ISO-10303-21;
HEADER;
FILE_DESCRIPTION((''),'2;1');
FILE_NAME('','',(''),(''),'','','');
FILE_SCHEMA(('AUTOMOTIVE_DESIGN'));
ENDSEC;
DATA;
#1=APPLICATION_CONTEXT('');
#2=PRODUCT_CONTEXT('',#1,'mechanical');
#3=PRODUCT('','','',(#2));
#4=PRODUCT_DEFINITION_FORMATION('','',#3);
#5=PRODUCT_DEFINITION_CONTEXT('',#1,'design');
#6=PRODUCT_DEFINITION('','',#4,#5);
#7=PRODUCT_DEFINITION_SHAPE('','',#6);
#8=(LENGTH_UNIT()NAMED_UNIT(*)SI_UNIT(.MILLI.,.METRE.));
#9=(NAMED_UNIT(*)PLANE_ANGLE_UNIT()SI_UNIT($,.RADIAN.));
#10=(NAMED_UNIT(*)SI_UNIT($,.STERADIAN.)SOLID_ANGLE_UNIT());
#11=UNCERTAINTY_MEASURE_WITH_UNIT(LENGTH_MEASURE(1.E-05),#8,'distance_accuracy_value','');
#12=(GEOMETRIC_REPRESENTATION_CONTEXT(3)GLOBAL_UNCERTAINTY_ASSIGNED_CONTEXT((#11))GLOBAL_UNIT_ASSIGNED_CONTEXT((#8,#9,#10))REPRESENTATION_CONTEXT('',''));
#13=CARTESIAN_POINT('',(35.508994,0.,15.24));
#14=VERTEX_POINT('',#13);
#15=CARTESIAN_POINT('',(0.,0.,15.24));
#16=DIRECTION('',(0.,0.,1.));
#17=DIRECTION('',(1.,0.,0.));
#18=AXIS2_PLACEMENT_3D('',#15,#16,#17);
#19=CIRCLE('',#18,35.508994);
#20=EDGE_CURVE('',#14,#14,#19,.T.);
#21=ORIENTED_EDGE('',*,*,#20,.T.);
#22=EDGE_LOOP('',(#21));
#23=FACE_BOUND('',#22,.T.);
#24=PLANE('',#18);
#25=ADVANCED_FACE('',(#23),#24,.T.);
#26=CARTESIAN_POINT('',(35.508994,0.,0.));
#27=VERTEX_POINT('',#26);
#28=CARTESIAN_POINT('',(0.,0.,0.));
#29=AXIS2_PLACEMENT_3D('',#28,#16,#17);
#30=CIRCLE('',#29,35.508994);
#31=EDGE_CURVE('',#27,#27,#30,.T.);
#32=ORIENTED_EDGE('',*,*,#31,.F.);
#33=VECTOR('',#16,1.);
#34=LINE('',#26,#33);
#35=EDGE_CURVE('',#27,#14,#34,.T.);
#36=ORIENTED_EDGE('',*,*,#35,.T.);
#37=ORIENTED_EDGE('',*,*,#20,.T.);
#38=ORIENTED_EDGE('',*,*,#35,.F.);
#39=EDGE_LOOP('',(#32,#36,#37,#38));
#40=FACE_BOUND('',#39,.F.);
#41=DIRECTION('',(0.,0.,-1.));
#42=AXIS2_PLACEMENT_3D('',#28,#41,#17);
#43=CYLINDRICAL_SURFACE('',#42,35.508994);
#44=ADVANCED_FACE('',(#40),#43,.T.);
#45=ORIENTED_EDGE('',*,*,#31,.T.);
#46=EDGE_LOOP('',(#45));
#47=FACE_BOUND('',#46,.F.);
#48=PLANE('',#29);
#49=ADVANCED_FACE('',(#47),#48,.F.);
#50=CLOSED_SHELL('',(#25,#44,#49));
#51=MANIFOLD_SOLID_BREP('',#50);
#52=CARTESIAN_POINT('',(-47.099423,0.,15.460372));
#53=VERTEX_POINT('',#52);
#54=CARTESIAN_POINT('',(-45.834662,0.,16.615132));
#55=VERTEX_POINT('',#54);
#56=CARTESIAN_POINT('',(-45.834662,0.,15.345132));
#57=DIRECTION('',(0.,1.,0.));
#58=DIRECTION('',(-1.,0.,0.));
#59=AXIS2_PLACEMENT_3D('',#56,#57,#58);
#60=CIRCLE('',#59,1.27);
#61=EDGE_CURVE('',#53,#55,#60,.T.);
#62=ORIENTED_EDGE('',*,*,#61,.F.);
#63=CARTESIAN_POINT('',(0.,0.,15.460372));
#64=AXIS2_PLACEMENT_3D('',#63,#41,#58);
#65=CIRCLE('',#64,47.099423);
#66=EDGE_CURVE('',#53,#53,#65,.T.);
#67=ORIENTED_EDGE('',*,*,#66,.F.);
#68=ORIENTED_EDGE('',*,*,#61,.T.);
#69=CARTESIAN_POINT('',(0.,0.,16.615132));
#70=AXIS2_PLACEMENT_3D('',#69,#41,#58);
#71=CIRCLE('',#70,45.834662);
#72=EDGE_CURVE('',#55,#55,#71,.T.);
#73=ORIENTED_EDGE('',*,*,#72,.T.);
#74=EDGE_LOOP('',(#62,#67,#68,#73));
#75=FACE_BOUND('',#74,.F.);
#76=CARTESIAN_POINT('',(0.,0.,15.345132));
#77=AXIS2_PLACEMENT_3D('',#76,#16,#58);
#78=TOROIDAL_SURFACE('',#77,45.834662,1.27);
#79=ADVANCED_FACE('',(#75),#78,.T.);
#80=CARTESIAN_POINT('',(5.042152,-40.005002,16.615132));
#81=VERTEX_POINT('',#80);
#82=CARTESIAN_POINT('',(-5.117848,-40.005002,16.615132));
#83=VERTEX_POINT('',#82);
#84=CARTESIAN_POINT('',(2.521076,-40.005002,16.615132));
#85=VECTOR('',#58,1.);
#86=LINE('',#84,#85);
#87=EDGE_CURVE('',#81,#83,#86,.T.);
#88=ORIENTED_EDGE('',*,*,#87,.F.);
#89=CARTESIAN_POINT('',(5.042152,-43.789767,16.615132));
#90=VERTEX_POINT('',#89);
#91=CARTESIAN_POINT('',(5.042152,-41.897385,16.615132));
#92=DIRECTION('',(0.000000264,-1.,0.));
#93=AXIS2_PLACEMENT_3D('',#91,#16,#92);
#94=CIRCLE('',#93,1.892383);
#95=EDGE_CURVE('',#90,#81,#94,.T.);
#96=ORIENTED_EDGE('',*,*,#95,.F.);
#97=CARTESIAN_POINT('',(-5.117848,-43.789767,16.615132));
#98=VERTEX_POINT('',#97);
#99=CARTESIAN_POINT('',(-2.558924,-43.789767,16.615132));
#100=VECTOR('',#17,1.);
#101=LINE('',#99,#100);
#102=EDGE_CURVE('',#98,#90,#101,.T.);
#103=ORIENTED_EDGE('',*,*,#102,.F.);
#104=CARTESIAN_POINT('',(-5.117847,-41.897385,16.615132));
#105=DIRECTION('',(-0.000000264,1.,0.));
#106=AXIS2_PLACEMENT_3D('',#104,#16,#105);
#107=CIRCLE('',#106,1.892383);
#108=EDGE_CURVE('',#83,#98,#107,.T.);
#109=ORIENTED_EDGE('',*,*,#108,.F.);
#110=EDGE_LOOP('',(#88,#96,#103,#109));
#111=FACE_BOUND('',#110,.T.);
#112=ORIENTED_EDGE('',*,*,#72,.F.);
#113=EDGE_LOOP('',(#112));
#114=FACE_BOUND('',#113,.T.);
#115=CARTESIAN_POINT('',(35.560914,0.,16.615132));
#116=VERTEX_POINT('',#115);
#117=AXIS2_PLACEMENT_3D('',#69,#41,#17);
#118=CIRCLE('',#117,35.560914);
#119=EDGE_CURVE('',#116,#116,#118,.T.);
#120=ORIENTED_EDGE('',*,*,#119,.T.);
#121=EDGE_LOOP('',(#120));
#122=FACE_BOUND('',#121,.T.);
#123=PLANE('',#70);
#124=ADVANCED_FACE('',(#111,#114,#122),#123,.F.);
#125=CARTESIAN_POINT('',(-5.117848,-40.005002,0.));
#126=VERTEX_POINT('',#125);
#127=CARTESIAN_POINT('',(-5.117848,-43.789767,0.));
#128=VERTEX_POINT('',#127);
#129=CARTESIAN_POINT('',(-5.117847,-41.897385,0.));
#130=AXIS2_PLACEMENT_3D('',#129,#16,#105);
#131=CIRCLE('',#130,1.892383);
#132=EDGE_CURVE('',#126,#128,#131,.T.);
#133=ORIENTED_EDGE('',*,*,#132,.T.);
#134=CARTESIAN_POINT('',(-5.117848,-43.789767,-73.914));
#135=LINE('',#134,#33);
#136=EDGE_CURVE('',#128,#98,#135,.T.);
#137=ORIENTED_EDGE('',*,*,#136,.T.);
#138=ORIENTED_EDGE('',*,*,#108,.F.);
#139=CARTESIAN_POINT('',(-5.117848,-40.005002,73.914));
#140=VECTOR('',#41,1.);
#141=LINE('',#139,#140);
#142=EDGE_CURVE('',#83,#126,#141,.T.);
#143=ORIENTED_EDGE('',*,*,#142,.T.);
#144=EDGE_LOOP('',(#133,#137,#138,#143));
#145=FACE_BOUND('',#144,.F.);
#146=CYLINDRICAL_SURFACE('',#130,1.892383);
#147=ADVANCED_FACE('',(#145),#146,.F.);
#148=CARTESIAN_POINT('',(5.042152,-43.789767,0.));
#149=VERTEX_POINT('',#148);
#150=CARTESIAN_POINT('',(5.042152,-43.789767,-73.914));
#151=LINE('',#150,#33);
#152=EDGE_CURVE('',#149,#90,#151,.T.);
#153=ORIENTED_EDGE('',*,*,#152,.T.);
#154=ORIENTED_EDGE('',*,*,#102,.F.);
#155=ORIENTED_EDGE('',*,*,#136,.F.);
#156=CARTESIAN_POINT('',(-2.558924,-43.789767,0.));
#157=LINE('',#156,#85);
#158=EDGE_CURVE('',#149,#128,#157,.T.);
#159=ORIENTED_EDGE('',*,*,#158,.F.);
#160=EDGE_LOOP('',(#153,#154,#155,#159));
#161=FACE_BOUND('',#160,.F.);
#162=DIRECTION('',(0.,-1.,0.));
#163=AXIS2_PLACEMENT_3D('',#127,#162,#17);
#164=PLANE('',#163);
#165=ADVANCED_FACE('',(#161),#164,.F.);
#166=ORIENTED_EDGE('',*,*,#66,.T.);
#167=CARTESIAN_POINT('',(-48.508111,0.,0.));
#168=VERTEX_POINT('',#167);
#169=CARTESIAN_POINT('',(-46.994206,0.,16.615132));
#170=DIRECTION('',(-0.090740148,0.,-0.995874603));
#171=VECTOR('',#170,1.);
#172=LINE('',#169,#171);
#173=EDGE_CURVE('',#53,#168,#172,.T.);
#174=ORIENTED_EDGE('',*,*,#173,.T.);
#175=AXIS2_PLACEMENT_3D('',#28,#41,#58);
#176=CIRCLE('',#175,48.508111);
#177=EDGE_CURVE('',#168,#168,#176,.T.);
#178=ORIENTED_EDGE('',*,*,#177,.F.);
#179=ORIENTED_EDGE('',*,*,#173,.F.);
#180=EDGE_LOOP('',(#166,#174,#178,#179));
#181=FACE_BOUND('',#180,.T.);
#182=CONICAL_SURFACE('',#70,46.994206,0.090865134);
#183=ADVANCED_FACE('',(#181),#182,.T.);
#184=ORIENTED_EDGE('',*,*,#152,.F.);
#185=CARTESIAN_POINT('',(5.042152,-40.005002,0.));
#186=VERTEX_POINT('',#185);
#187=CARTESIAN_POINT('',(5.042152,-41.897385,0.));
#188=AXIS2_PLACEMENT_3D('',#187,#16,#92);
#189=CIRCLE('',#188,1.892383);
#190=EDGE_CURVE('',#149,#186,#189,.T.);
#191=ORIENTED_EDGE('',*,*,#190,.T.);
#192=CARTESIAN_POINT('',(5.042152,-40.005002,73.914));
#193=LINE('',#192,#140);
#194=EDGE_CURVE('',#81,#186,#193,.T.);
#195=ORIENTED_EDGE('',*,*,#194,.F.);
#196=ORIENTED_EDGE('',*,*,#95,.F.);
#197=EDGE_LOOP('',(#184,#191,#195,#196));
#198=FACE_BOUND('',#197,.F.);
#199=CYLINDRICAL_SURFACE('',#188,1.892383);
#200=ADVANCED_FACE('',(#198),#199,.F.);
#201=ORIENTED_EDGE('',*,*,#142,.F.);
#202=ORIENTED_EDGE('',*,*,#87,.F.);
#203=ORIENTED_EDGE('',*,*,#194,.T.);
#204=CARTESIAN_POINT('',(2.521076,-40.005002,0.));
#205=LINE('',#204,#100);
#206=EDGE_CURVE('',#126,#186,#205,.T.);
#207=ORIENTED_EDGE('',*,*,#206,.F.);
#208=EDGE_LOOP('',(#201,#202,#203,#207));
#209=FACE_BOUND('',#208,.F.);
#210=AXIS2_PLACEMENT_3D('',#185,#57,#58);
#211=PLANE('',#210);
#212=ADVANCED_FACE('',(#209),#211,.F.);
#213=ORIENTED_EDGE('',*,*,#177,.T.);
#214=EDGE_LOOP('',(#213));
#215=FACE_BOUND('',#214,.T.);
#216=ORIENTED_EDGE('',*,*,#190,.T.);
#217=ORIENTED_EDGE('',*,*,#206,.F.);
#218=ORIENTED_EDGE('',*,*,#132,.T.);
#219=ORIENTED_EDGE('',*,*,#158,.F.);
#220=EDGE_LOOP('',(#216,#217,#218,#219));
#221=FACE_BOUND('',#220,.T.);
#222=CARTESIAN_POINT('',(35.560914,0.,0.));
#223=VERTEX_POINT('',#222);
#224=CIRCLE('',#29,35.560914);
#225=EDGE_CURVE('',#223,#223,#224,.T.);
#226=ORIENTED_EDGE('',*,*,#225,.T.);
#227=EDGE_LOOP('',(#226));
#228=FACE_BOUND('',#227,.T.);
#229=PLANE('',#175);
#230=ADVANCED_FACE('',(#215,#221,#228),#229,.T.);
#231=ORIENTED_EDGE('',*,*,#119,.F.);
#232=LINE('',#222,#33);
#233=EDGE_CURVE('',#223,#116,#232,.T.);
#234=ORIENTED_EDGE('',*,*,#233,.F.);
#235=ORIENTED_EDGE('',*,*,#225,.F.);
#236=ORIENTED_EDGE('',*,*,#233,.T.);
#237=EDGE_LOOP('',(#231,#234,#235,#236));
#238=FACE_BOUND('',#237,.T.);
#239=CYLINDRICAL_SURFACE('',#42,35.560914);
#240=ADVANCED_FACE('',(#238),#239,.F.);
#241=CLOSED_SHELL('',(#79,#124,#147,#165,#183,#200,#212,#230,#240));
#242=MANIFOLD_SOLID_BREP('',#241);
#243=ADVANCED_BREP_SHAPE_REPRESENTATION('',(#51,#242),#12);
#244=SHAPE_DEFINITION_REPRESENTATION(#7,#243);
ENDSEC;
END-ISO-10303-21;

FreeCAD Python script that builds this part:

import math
import FreeCAD as App
import Part
import Sketcher
from FreeCAD import Vector
Q = App.Units.Quantity


def edges_at(feature, points):
    """Names of the edges that pass closest to the given points."""
    edges = feature.Shape.Edges
    near = lambda p: min(range(len(edges)), key=lambda i: edges[i].distToShape(Part.Vertex(*p))[0])
    return sorted({f"Edge{near(p) + 1}" for p in points})


def add_polygon(sketch, points):
    """Adds a closed chain of lines whose ends are joined by coincident constraints."""
    first, n = sketch.GeometryCount, len(points)
    for a, b in zip(points, points[1:] + points[:1]):
        sketch.addGeometry(Part.LineSegment(App.Vector(*a, 0), App.Vector(*b, 0)), False)
    for i in range(n):
        sketch.addConstraint(Sketcher.Constraint("Coincident", first + i, 2, first + (i + 1) % n, 1))

doc = App.newDocument("Part")
params = doc.addObject("Spreadsheet::Sheet", "Params")
for row, (alias, value) in enumerate([
    ("revolution_angle", "360 deg"),
    ("pocket1_length", "0.8 in"),
    ("sketch3_width", "0.4 in"),
    ("pocket2_length", "5.82 in"),
    ("fillet_radius", "0.05 in"),
    ("pad1_length", "0.6 in"),
], start=1):
    params.set(f"A{row}", alias)
    params.set(f"B{row}", "=" + value)
    params.setAlias(f"B{row}", alias)

body = doc.addObject("PartDesign::Body", "Body")

# Sketch on XZ plane
sketch1 = doc.addObject("Sketcher::SketchObject", "Sketch")
body.addObject(sketch1)
sketch1.AttachmentSupport = (doc.XZ_Plane, [""])
sketch1.MapMode = "FlatFace"
add_polygon(sketch1, [(-49, 0), (0, 0), (0, 17), (-47, 17)])  # lines 0-3
sketch1.addConstraint(Sketcher.Constraint("Horizontal", 0))
sketch1.addConstraint(Sketcher.Constraint("Vertical", 1))
sketch1.addConstraint(Sketcher.Constraint("Horizontal", 2))
sketch1.addConstraint(Sketcher.Constraint("Coincident", 0, 2, -1, 1))
sketch1.addConstraint(Sketcher.Constraint("DistanceX", 0, 1, 0, 2, 48.508111))
sketch1.addConstraint(Sketcher.Constraint("DistanceY", 1, 1, 1, 2, 16.615132))
sketch1.addConstraint(Sketcher.Constraint("Distance", 3, 16.68396))
revolution = doc.addObject("PartDesign::Revolution", "Revolution")
body.addObject(revolution)
revolution.Profile = sketch1
revolution.ReferenceAxis = (sketch1, ["V_Axis"])
revolution.setExpression("Angle", "Params.revolution_angle")

# Sketch on XY plane
sketch2 = doc.addObject("Sketcher::SketchObject", "Sketch001")
body.addObject(sketch2)
sketch2.AttachmentSupport = (doc.XY_Plane, [""])
sketch2.MapMode = "FlatFace"
sketch2.addGeometry(Part.Circle(Vector(0, 0, 0), Vector(0, 0, 1), 36), False)
sketch2.addConstraint(Sketcher.Constraint("Coincident", 0, 3, -1, 1))
sketch2.addConstraint(Sketcher.Constraint("Diameter", 0, 71.121828))
pocket1 = doc.addObject("PartDesign::Pocket", "Pocket")
body.addObject(pocket1)
pocket1.Profile = sketch2
pocket1.setExpression("Length", "Params.pocket1_length")
pocket1.Reversed = True

# Sketch on XY plane
sketch3 = doc.addObject("Sketcher::SketchObject", "Sketch002")
body.addObject(sketch3)
sketch3.AttachmentSupport = (doc.XY_Plane, [""])
sketch3.MapMode = "FlatFace"
sketch3.addGeometry(Part.ArcOfCircle(Part.Circle(Vector(-5.1, -41.9, 0), Vector(0, 0, 1), 1.9), math.radians(90), math.radians(270)), False)
sketch3.addGeometry(Part.LineSegment(Vector(-5.1, -43.8, 0), Vector(5, -43.8, 0)), False)
sketch3.addGeometry(Part.ArcOfCircle(Part.Circle(Vector(5, -41.9, 0), Vector(0, 0, 1), 1.9), math.radians(-90), math.radians(90)), False)
sketch3.addGeometry(Part.LineSegment(Vector(5, -40, 0), Vector(-5.1, -40, 0)), False)
sketch3.addConstraint(Sketcher.Constraint("Tangent", 0, 2, 1, 1))
sketch3.addConstraint(Sketcher.Constraint("Tangent", 1, 2, 2, 1))
sketch3.addConstraint(Sketcher.Constraint("Tangent", 2, 2, 3, 1))
sketch3.addConstraint(Sketcher.Constraint("Tangent", 3, 2, 0, 1))
sketch3.addConstraint(Sketcher.Constraint("Horizontal", 1))
sketch3.addConstraint(Sketcher.Constraint("Horizontal", 3))
sketch3.addConstraint(Sketcher.Constraint("DistanceX", 1, 1, 1, 2, Q("0.4 in")))
sketch3.addConstraint(Sketcher.Constraint("DistanceY", 2, 2, -1, 1, Q("1.5750001 in")))
sketch3.addConstraint(Sketcher.Constraint("Radius", 0, 1.892383))
sketch3.addConstraint(Sketcher.Constraint("DistanceX", -1, 1, 2, 3, 5.042152))
sketch3.setExpression("Constraints[6]", "Params.sketch3_width")
pocket2 = doc.addObject("PartDesign::Pocket", "Pocket001")
body.addObject(pocket2)
pocket2.Profile = sketch3
pocket2.setExpression("Length", "Params.pocket2_length")
pocket2.Midplane = True
doc.recompute()

fillet = doc.addObject("PartDesign::Fillet", "Fillet")
body.addObject(fillet)
fillet.Base = (pocket2, edges_at(pocket2, [(46.994, 0, 16.615)]))
fillet.setExpression("Radius", "Params.fillet_radius")
body2 = doc.addObject("PartDesign::Body", "Body001")

# Sketch on XY plane
sketch4 = doc.addObject("Sketcher::SketchObject", "Sketch003")
body2.addObject(sketch4)
sketch4.AttachmentSupport = (doc.getObject("XY_Plane001"), [""])
sketch4.MapMode = "FlatFace"
sketch4.addGeometry(Part.Circle(Vector(0, 0, 0), Vector(0, 0, 1), 36), False)
sketch4.addConstraint(Sketcher.Constraint("Coincident", 0, 3, -1, 1))
sketch4.addConstraint(Sketcher.Constraint("Diameter", 0, 71.017988))
pad1 = doc.addObject("PartDesign::Pad", "Pad")
body2.addObject(pad1)
pad1.Profile = sketch4
pad1.setExpression("Length", "Params.pad1_length")

doc.recompute()
